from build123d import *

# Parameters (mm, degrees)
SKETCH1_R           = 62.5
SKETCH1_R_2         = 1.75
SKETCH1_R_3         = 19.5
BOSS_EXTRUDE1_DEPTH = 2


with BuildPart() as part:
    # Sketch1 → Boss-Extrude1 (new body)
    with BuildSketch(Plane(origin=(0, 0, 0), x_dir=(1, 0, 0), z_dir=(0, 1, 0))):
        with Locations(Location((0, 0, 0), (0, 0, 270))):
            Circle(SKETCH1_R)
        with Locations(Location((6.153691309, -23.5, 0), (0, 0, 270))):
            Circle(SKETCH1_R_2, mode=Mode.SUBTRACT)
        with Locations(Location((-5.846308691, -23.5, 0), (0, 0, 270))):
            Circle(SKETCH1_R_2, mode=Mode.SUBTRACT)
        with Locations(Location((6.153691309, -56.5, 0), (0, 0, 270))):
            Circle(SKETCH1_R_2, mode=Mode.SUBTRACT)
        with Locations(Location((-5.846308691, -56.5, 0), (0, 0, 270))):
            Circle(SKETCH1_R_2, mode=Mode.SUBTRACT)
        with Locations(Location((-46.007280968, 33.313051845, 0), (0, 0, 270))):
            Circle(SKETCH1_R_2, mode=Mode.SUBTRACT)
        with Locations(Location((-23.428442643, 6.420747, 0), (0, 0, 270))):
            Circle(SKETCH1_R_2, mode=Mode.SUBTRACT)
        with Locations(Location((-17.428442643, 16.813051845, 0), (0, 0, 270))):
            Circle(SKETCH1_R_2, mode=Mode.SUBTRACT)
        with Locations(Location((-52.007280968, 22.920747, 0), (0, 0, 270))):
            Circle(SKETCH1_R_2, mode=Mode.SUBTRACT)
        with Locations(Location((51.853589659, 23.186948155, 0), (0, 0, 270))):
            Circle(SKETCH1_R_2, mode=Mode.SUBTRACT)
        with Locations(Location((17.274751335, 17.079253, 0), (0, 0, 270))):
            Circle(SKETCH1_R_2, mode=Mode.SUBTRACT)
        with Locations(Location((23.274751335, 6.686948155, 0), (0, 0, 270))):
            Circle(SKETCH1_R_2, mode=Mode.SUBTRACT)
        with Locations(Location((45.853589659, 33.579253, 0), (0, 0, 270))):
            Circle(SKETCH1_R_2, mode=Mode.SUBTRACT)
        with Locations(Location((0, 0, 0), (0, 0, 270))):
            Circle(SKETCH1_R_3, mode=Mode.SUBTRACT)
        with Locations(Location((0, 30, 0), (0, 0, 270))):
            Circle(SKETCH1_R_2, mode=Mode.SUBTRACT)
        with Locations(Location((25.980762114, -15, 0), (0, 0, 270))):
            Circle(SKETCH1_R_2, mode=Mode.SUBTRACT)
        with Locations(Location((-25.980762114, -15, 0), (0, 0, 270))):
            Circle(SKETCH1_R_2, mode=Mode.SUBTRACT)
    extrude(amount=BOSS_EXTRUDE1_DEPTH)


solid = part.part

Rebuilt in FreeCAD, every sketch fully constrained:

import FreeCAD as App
import Part
import Sketcher

doc = App.newDocument("Part")
params = doc.addObject("Spreadsheet::Sheet", "Params")
for row, (alias, value) in enumerate([
    ("sketch1_diameter", "125 mm"),
    ("sketch1_diameter2", "39 mm"),
    ("sketch1_diameter3", "3.5 mm"),
    ("pad1_length", "2 mm"),
], start=1):
    params.set(f"A{row}", alias)
    params.set(f"B{row}", "=" + value)
    params.setAlias(f"B{row}", alias)

body = doc.addObject("PartDesign::Body", "Body")

# Sketch on XZ plane
sketch1 = body.newObject("Sketcher::SketchObject", "Sketch")
sketch1.AttachmentSupport = (doc.getObject("XZ_Plane"), [""])
sketch1.MapMode = "FlatFace"
sketch1.addGeometry(Part.Circle(App.Vector(0, 0, 0), App.Vector(0, 0, 1), 62.5), False)
sketch1.addGeometry(Part.Circle(App.Vector(-46, -33.3, 0), App.Vector(0, 0, 1), 1.8), False)
sketch1.addGeometry(Part.Circle(App.Vector(-52, -22.9, 0), App.Vector(0, 0, 1), 1.8), False)
sketch1.addGeometry(Part.Circle(App.Vector(-17.4, -16.8, 0), App.Vector(0, 0, 1), 1.8), False)
sketch1.addGeometry(Part.Circle(App.Vector(-23.4, -6.4, 0), App.Vector(0, 0, 1), 1.8), False)
sketch1.addGeometry(Part.Circle(App.Vector(-26, 15, 0), App.Vector(0, 0, 1), 1.8), False)
sketch1.addGeometry(Part.Circle(App.Vector(-5.8, 23.5, 0), App.Vector(0, 0, 1), 1.8), False)
sketch1.addGeometry(Part.Circle(App.Vector(-5.8, 56.5, 0), App.Vector(0, 0, 1), 1.8), False)
sketch1.addGeometry(Part.Circle(App.Vector(0, -30, 0), App.Vector(0, 0, 1), 1.8), False)
sketch1.addGeometry(Part.Circle(App.Vector(17.3, -17.1, 0), App.Vector(0, 0, 1), 1.8), False)
sketch1.addGeometry(Part.Circle(App.Vector(0, 0, 0), App.Vector(0, 0, 1), 19.5), False)
sketch1.addGeometry(Part.Circle(App.Vector(23.3, -6.7, 0), App.Vector(0, 0, 1), 1.8), False)
sketch1.addGeometry(Part.Circle(App.Vector(45.9, -33.6, 0), App.Vector(0, 0, 1), 1.8), False)
sketch1.addGeometry(Part.Circle(App.Vector(51.9, -23.2, 0), App.Vector(0, 0, 1), 1.8), False)
sketch1.addGeometry(Part.Circle(App.Vector(6.2, 23.5, 0), App.Vector(0, 0, 1), 1.8), False)
sketch1.addGeometry(Part.Circle(App.Vector(26, 15, 0), App.Vector(0, 0, 1), 1.8), False)
sketch1.addGeometry(Part.Circle(App.Vector(6.2, 56.5, 0), App.Vector(0, 0, 1), 1.8), False)
sketch1.addConstraint(Sketcher.Constraint("Coincident", 0, 3, -1, 1))
sketch1.addConstraint(Sketcher.Constraint("Coincident", 10, 3, -1, 1))
sketch1.addConstraint(Sketcher.Constraint("Equal", 1, 2))
sketch1.addConstraint(Sketcher.Constraint("Equal", 2, 3))
sketch1.addConstraint(Sketcher.Constraint("Equal", 3, 4))
sketch1.addConstraint(Sketcher.Constraint("Equal", 4, 5))
sketch1.addConstraint(Sketcher.Constraint("Equal", 5, 6))
sketch1.addConstraint(Sketcher.Constraint("Equal", 6, 7))
sketch1.addConstraint(Sketcher.Constraint("Equal", 7, 8))
sketch1.addConstraint(Sketcher.Constraint("Equal", 8, 9))
sketch1.addConstraint(Sketcher.Constraint("Equal", 9, 11))
sketch1.addConstraint(Sketcher.Constraint("Equal", 11, 12))
sketch1.addConstraint(Sketcher.Constraint("Equal", 12, 13))
sketch1.addConstraint(Sketcher.Constraint("Equal", 13, 14))
sketch1.addConstraint(Sketcher.Constraint("Equal", 14, 15))
sketch1.addConstraint(Sketcher.Constraint("Equal", 15, 16))
sketch1.addConstraint(Sketcher.Constraint("Symmetric", 5, 3, 15, 3, -2))
sketch1.addConstraint(Sketcher.Constraint("PointOnObject", 8, 3, -2))
sketch1.addConstraint(Sketcher.Constraint("Horizontal", 6, 3, 14, 3))
sketch1.addConstraint(Sketcher.Constraint("Horizontal", 7, 3, 16, 3))
sketch1.addConstraint(Sketcher.Constraint("Vertical", 6, 3, 7, 3))
sketch1.addConstraint(Sketcher.Constraint("Vertical", 14, 3, 16, 3))
sketch1.addConstraint(Sketcher.Constraint("Diameter", 0, 125.0))
sketch1.addConstraint(Sketcher.Constraint("Diameter", 10, 39.0))
sketch1.addConstraint(Sketcher.Constraint("Diameter", 1, 3.5))
sketch1.addConstraint(Sketcher.Constraint("DistanceY", -1, 1, 5, 3, 15.0))
sketch1.addConstraint(Sketcher.Constraint("DistanceY", 8, 3, -1, 1, 30.0))
sketch1.addConstraint(Sketcher.Constraint("DistanceX", 2, 3, 1, 3, 6.0))
sketch1.addConstraint(Sketcher.Constraint("DistanceX", 4, 3, 3, 3, 6.0))
sketch1.addConstraint(Sketcher.Constraint("DistanceY", 6, 3, 7, 3, 33.0))
sketch1.addConstraint(Sketcher.Constraint("DistanceX", 9, 3, 11, 3, 6.0))
sketch1.addConstraint(Sketcher.Constraint("DistanceX", 12, 3, 13, 3, 6.0))
sketch1.addConstraint(Sketcher.Constraint("DistanceX", 6, 3, 14, 3, 12.0))
sketch1.addConstraint(Sketcher.Constraint("DistanceY", -1, 1, 6, 3, 23.5))
sketch1.addConstraint(Sketcher.Constraint("DistanceY", 1, 3, 3, 3, 16.5))
sketch1.addConstraint(Sketcher.Constraint("DistanceY", 2, 3, 4, 3, 16.5))
sketch1.addConstraint(Sketcher.Constraint("DistanceY", 12, 3, 9, 3, 16.5))
sketch1.addConstraint(Sketcher.Constraint("DistanceY", 13, 3, 11, 3, 16.5))
sketch1.addConstraint(Sketcher.Constraint("DistanceY", 9, 3, 3, 3, 0.266201))
sketch1.addConstraint(Sketcher.Constraint("DistanceX", 1, 3, -1, 1, 46.007281))
sketch1.addConstraint(Sketcher.Constraint("DistanceY", 1, 3, -1, 1, 33.313052))
sketch1.addConstraint(Sketcher.Constraint("DistanceX", 6, 3, -1, 1, 5.846309))
sketch1.addConstraint(Sketcher.Constraint("DistanceX", -1, 1, 9, 3, 17.274751))
sketch1.addConstraint(Sketcher.Constraint("DistanceY", 11, 3, -1, 1, 6.686948))
sketch1.addConstraint(Sketcher.Constraint("DistanceX", -1, 1, 12, 3, 45.85359))
sketch1.addConstraint(Sketcher.Constraint("DistanceX", 1, 3, 3, 3, 28.578838))
sketch1.addConstraint(Sketcher.Constraint("DistanceX", 5, 3, 4, 3, 2.552319))
sketch1.addConstraint(Sketcher.Constraint("DistanceY", 2, 3, -1, 1, 22.920747))
sketch1.setExpression("Constraints[22]", "Params.sketch1_diameter")
sketch1.setExpression("Constraints[23]", "Params.sketch1_diameter2")
sketch1.setExpression("Constraints[24]", "Params.sketch1_diameter3")
pad1 = body.newObject("PartDesign::Pad", "Pad")
pad1.Profile = sketch1
pad1.setExpression("Length", "Params.pad1_length")
pad1.Reversed = True

doc.recompute()
